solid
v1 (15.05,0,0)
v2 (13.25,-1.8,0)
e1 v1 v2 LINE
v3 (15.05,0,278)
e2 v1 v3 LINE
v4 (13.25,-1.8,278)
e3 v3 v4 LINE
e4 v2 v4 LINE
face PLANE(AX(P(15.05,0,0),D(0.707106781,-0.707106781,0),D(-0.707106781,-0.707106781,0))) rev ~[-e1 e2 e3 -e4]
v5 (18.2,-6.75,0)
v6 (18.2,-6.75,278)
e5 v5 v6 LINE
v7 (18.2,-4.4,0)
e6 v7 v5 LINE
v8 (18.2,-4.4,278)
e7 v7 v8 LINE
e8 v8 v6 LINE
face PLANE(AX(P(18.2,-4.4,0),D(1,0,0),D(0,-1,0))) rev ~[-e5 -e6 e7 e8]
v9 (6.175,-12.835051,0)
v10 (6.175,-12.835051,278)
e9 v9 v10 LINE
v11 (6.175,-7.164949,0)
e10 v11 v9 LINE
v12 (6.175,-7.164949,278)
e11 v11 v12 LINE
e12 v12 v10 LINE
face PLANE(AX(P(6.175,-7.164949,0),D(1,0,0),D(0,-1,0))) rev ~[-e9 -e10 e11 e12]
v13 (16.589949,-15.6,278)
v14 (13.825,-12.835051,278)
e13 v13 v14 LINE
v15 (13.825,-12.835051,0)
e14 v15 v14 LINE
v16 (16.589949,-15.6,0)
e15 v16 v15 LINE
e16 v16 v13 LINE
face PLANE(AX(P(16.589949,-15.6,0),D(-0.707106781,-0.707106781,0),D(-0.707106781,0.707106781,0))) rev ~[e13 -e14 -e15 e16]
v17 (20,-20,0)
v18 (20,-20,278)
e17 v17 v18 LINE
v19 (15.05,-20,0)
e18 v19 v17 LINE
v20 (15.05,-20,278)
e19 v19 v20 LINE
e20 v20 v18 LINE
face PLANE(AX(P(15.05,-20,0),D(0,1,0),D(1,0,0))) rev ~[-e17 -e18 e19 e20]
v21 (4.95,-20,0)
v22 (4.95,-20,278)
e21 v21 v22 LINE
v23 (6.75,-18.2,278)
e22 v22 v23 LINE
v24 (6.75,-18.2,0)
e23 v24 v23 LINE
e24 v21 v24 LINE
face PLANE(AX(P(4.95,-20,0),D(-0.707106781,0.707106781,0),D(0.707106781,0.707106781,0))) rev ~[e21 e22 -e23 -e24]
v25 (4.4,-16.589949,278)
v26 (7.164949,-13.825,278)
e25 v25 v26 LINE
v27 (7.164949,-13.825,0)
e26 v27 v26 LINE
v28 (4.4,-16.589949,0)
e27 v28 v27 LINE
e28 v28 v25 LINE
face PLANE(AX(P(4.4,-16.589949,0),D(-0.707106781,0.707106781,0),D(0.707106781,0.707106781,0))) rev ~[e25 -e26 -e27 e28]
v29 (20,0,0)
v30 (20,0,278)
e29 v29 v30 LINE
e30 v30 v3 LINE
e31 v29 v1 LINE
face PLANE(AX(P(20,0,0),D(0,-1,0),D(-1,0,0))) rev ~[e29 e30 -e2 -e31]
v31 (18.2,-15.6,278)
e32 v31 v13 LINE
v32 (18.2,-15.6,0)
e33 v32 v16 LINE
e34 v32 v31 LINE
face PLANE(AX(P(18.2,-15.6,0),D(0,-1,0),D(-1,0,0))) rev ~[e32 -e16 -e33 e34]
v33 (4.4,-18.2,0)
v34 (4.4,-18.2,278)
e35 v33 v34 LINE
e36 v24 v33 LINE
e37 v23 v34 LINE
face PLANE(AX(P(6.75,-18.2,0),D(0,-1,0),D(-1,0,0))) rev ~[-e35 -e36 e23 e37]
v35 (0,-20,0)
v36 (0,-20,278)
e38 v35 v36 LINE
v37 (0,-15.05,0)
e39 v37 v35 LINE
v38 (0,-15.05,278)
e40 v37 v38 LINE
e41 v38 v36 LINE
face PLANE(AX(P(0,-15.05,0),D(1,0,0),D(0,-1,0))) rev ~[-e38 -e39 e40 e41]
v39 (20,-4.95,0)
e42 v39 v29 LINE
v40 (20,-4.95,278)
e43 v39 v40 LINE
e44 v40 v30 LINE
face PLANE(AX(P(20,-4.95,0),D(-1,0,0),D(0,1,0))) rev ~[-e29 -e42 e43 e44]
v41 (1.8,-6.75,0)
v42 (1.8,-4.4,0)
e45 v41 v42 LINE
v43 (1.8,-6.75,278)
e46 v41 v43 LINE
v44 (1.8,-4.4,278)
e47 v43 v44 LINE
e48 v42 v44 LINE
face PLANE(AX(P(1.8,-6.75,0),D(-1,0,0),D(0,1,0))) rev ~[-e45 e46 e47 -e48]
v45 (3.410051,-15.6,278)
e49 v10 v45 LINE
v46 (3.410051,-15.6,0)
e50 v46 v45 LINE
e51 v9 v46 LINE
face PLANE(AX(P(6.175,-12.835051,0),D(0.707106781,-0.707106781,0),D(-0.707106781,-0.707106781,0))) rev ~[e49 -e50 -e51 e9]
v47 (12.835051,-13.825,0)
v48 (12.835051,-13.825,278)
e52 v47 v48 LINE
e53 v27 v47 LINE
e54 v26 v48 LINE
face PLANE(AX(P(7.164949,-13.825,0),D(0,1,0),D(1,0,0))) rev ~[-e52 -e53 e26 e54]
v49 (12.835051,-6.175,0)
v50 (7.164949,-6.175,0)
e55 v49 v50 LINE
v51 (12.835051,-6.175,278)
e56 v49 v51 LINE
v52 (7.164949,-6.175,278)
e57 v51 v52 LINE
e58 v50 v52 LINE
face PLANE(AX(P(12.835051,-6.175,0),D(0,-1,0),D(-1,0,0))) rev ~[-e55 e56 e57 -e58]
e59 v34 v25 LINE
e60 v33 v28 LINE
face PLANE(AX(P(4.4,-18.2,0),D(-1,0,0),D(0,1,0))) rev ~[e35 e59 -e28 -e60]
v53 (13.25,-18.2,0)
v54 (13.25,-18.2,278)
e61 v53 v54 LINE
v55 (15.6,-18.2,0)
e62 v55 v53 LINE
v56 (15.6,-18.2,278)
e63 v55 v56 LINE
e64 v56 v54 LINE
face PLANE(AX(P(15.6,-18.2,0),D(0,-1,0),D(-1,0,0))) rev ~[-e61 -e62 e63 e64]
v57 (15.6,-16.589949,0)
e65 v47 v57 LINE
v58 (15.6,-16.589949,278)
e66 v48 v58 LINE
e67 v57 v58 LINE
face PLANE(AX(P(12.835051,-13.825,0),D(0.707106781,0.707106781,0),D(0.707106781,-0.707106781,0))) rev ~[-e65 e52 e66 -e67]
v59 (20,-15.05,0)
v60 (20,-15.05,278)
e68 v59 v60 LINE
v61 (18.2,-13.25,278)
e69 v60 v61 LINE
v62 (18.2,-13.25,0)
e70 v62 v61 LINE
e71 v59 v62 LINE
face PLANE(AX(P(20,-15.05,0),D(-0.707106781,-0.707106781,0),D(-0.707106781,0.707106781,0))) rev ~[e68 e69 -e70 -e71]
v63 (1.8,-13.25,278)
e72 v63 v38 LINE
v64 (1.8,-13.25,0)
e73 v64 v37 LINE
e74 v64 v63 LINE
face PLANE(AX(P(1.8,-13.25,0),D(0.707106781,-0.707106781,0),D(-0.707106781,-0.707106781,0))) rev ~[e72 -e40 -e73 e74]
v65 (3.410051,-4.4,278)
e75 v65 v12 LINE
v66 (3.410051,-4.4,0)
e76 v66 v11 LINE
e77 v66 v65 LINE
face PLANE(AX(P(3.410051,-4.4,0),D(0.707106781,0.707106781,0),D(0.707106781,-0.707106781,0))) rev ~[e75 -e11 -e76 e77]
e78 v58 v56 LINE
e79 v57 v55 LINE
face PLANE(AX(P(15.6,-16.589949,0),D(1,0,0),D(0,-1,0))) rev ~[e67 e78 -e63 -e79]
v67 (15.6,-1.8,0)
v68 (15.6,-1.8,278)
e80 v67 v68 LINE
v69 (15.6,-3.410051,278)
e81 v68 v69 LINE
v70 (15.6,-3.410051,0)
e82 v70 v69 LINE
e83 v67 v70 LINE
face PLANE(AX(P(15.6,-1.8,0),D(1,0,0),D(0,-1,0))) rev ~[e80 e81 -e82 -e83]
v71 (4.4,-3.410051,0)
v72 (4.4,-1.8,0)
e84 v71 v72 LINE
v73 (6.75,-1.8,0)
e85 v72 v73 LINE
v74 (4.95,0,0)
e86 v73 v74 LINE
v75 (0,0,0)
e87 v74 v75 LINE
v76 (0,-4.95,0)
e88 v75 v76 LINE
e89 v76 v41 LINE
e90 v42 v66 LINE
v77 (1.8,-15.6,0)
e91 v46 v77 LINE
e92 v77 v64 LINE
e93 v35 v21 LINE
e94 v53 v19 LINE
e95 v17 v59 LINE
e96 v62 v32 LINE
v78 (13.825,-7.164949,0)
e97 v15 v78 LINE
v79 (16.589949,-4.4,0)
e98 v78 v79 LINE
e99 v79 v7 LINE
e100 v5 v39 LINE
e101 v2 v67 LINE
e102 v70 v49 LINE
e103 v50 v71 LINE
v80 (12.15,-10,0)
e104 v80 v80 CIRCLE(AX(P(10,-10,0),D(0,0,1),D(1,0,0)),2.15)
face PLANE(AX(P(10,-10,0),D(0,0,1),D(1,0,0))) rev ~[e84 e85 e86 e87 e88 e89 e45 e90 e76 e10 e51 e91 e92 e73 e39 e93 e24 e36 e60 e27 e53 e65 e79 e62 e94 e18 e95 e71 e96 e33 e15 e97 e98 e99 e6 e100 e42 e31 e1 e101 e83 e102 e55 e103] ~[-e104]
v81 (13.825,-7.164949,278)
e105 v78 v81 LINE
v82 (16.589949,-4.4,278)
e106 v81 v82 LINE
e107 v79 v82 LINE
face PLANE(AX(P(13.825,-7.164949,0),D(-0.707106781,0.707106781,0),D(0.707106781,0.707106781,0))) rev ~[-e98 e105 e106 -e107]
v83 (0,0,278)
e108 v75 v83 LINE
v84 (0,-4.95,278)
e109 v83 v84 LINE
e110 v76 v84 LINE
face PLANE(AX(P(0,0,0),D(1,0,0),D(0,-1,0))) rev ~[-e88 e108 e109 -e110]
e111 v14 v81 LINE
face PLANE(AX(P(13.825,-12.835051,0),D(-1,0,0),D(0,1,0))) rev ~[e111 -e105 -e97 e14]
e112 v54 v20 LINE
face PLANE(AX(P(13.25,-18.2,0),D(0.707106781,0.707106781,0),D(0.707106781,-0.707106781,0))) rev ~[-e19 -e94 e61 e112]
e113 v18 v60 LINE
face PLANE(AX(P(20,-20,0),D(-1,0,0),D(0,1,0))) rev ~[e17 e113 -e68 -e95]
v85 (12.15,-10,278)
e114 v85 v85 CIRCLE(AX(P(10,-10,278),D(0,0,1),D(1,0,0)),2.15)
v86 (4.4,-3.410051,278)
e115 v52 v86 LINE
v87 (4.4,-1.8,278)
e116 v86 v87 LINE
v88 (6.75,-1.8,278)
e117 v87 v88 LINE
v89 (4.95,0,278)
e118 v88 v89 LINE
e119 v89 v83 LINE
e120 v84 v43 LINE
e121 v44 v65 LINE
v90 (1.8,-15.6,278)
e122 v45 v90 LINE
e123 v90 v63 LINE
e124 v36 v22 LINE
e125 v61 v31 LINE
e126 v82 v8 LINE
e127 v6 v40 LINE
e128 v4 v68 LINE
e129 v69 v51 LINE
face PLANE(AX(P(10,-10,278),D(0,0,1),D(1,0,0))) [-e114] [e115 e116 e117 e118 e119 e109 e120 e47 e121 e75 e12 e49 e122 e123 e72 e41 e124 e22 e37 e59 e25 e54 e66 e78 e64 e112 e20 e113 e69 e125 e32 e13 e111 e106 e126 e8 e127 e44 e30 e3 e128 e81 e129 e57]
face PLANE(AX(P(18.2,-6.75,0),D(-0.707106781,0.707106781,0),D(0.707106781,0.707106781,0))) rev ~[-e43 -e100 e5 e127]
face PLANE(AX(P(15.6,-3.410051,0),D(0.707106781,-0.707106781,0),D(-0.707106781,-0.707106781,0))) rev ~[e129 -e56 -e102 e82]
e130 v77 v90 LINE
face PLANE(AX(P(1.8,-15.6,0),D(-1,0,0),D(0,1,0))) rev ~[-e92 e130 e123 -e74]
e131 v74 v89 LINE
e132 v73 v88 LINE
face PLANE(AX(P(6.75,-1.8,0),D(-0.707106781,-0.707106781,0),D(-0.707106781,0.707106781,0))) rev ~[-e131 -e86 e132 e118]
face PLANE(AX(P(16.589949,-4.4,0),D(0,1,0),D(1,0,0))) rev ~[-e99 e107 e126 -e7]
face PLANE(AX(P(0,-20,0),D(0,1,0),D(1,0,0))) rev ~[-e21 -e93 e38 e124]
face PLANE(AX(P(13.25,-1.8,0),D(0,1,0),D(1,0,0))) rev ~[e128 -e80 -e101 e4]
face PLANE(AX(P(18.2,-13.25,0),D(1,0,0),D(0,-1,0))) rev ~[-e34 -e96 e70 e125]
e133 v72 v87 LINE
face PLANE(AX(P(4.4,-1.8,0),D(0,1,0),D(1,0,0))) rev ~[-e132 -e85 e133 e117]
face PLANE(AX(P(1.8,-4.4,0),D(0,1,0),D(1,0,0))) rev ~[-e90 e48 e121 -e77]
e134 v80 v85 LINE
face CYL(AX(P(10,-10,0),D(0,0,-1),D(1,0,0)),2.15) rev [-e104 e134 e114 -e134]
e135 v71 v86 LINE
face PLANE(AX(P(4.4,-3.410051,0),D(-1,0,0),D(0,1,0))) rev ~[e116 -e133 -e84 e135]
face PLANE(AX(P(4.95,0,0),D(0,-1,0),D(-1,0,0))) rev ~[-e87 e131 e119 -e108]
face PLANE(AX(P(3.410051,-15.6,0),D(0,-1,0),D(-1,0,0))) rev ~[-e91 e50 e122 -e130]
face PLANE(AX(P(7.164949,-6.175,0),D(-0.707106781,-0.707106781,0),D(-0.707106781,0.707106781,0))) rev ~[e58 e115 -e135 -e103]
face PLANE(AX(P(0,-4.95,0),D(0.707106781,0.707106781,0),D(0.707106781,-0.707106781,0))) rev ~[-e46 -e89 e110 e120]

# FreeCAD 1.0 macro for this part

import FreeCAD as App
import Part
import Sketcher
Q = App.Units.Quantity

doc = App.newDocument("Part")
body = doc.addObject("PartDesign::Body", "Body")

sketch1 = body.newObject("Sketcher::SketchObject", "Sketch")
sketch1.AttachmentSupport = (doc.getObject("XY_Plane"), [""])
sketch1.MapMode = "FlatFace"
sketch1.addGeometry([
    Part.LineSegment(App.Vector(0, 0, 0), App.Vector(0, -4.95, 0)),
    Part.LineSegment(App.Vector(0, -4.95, 0), App.Vector(1.8, -6.75, 0)),
    Part.LineSegment(App.Vector(1.8, -6.75, 0), App.Vector(1.8, -4.4, 0)),
    Part.LineSegment(App.Vector(1.8, -4.4, 0), App.Vector(3.410051, -4.4, 0)),
    Part.LineSegment(App.Vector(3.410051, -4.4, 0), App.Vector(6.175, -7.164949, 0)),
    Part.LineSegment(App.Vector(6.175, -7.164949, 0), App.Vector(6.175, -12.835051, 0)),
    Part.LineSegment(App.Vector(6.175, -12.835051, 0), App.Vector(3.410051, -15.6, 0)),
    Part.LineSegment(App.Vector(3.410051, -15.6, 0), App.Vector(1.8, -15.6, 0)),
    Part.LineSegment(App.Vector(1.8, -15.6, 0), App.Vector(1.8, -13.25, 0)),
    Part.LineSegment(App.Vector(1.8, -13.25, 0), App.Vector(0, -15.05, 0)),
    Part.LineSegment(App.Vector(0, -15.05, 0), App.Vector(0, -20, 0)),
    Part.LineSegment(App.Vector(0, -20, 0), App.Vector(4.95, -20, 0)),
    Part.LineSegment(App.Vector(4.95, -20, 0), App.Vector(6.75, -18.2, 0)),
    Part.LineSegment(App.Vector(6.75, -18.2, 0), App.Vector(4.4, -18.2, 0)),
    Part.LineSegment(App.Vector(4.4, -18.2, 0), App.Vector(4.4, -16.589949, 0)),
    Part.LineSegment(App.Vector(4.4, -16.589949, 0), App.Vector(7.164949, -13.825, 0)),
    Part.LineSegment(App.Vector(7.164949, -13.825, 0), App.Vector(12.835051, -13.825, 0)),
    Part.LineSegment(App.Vector(12.835051, -13.825, 0), App.Vector(15.6, -16.589949, 0)),
    Part.LineSegment(App.Vector(15.6, -16.589949, 0), App.Vector(15.6, -18.2, 0)),
    Part.LineSegment(App.Vector(15.6, -18.2, 0), App.Vector(13.25, -18.2, 0)),
    Part.LineSegment(App.Vector(13.25, -18.2, 0), App.Vector(15.05, -20, 0)),
    Part.LineSegment(App.Vector(15.05, -20, 0), App.Vector(20, -20, 0)),
    Part.LineSegment(App.Vector(20, -20, 0), App.Vector(20, -15.05, 0)),
    Part.LineSegment(App.Vector(20, -15.05, 0), App.Vector(18.2, -13.25, 0)),
    Part.LineSegment(App.Vector(18.2, -13.25, 0), App.Vector(18.2, -15.6, 0)),
    Part.LineSegment(App.Vector(18.2, -15.6, 0), App.Vector(16.589949, -15.6, 0)),
    Part.LineSegment(App.Vector(16.589949, -15.6, 0), App.Vector(13.825, -12.835051, 0)),
    Part.LineSegment(App.Vector(13.825, -12.835051, 0), App.Vector(13.825, -7.164949, 0)),
    Part.LineSegment(App.Vector(13.825, -7.164949, 0), App.Vector(16.589949, -4.4, 0)),
    Part.LineSegment(App.Vector(16.589949, -4.4, 0), App.Vector(18.2, -4.4, 0)),
    Part.LineSegment(App.Vector(18.2, -4.4, 0), App.Vector(18.2, -6.75, 0)),
    Part.LineSegment(App.Vector(18.2, -6.75, 0), App.Vector(20, -4.95, 0)),
    Part.LineSegment(App.Vector(20, -4.95, 0), App.Vector(20, 0, 0)),
    Part.LineSegment(App.Vector(20, 0, 0), App.Vector(15.05, 0, 0)),
    Part.LineSegment(App.Vector(15.05, 0, 0), App.Vector(13.25, -1.8, 0)),
    Part.LineSegment(App.Vector(13.25, -1.8, 0), App.Vector(15.6, -1.8, 0)),
    Part.LineSegment(App.Vector(15.6, -1.8, 0), App.Vector(15.6, -3.410051, 0)),
    Part.LineSegment(App.Vector(15.6, -3.410051, 0), App.Vector(12.835051, -6.175, 0)),
    Part.LineSegment(App.Vector(12.835051, -6.175, 0), App.Vector(7.164949, -6.175, 0)),
    Part.LineSegment(App.Vector(7.164949, -6.175, 0), App.Vector(4.4, -3.410051, 0)),
    Part.LineSegment(App.Vector(4.4, -3.410051, 0), App.Vector(4.4, -1.8, 0)),
    Part.LineSegment(App.Vector(4.4, -1.8, 0), App.Vector(6.75, -1.8, 0)),
    Part.LineSegment(App.Vector(6.75, -1.8, 0), App.Vector(4.95, 0, 0)),
    Part.LineSegment(App.Vector(4.95, 0, 0), App.Vector(0, 0, 0)),
    Part.Circle(App.Vector(10, -10, 0), App.Vector(0, 0, 1), 2.15),
], False)
sketch1.addConstraint([
    Sketcher.Constraint("Coincident", 0, 2, 1, 1),
    Sketcher.Constraint("Coincident", 1, 2, 2, 1),
    Sketcher.Constraint("Coincident", 2, 2, 3, 1),
    Sketcher.Constraint("Coincident", 3, 2, 4, 1),
    Sketcher.Constraint("Coincident", 4, 2, 5, 1),
    Sketcher.Constraint("Coincident", 5, 2, 6, 1),
    Sketcher.Constraint("Coincident", 6, 2, 7, 1),
    Sketcher.Constraint("Coincident", 7, 2, 8, 1),
    Sketcher.Constraint("Coincident", 8, 2, 9, 1),
    Sketcher.Constraint("Coincident", 9, 2, 10, 1),
    Sketcher.Constraint("Coincident", 10, 2, 11, 1),
    Sketcher.Constraint("Coincident", 11, 2, 12, 1),
    Sketcher.Constraint("Coincident", 12, 2, 13, 1),
    Sketcher.Constraint("Coincident", 13, 2, 14, 1),
    Sketcher.Constraint("Coincident", 14, 2, 15, 1),
    Sketcher.Constraint("Coincident", 15, 2, 16, 1),
    Sketcher.Constraint("Coincident", 16, 2, 17, 1),
    Sketcher.Constraint("Coincident", 17, 2, 18, 1),
    Sketcher.Constraint("Coincident", 18, 2, 19, 1),
    Sketcher.Constraint("Coincident", 19, 2, 20, 1),
    Sketcher.Constraint("Coincident", 20, 2, 21, 1),
    Sketcher.Constraint("Coincident", 21, 2, 22, 1),
    Sketcher.Constraint("Coincident", 22, 2, 23, 1),
    Sketcher.Constraint("Coincident", 23, 2, 24, 1),
    Sketcher.Constraint("Coincident", 24, 2, 25, 1),
    Sketcher.Constraint("Coincident", 25, 2, 26, 1),
    Sketcher.Constraint("Coincident", 26, 2, 27, 1),
    Sketcher.Constraint("Coincident", 27, 2, 28, 1),
    Sketcher.Constraint("Coincident", 28, 2, 29, 1),
    Sketcher.Constraint("Coincident", 29, 2, 30, 1),
    Sketcher.Constraint("Coincident", 30, 2, 31, 1),
    Sketcher.Constraint("Coincident", 31, 2, 32, 1),
    Sketcher.Constraint("Coincident", 32, 2, 33, 1),
    Sketcher.Constraint("Coincident", 33, 2, 34, 1),
    Sketcher.Constraint("Coincident", 34, 2, 35, 1),
    Sketcher.Constraint("Coincident", 35, 2, 36, 1),
    Sketcher.Constraint("Coincident", 36, 2, 37, 1),
    Sketcher.Constraint("Coincident", 37, 2, 38, 1),
    Sketcher.Constraint("Coincident", 38, 2, 39, 1),
    Sketcher.Constraint("Coincident", 39, 2, 40, 1),
    Sketcher.Constraint("Coincident", 40, 2, 41, 1),
    Sketcher.Constraint("Coincident", 41, 2, 42, 1),
    Sketcher.Constraint("Coincident", 42, 2, 43, 1),
    Sketcher.Constraint("Coincident", 43, 2, 0, 1),
    Sketcher.Constraint("Vertical", 0),
    Sketcher.Constraint("Vertical", 2),
    Sketcher.Constraint("Horizontal", 3),
    Sketcher.Constraint("Vertical", 5),
    Sketcher.Constraint("Horizontal", 7),
    Sketcher.Constraint("Vertical", 8),
    Sketcher.Constraint("Vertical", 10),
    Sketcher.Constraint("Horizontal", 11),
    Sketcher.Constraint("Horizontal", 13),
    Sketcher.Constraint("Vertical", 14),
    Sketcher.Constraint("Horizontal", 16),
    Sketcher.Constraint("Vertical", 18),
    Sketcher.Constraint("Horizontal", 19),
    Sketcher.Constraint("Horizontal", 21),
    Sketcher.Constraint("Vertical", 22),
    Sketcher.Constraint("Vertical", 24),
    Sketcher.Constraint("Horizontal", 25),
    Sketcher.Constraint("Vertical", 27),
    Sketcher.Constraint("Horizontal", 29),
    Sketcher.Constraint("Vertical", 30),
    Sketcher.Constraint("Vertical", 32),
    Sketcher.Constraint("Horizontal", 33),
    Sketcher.Constraint("Horizontal", 35),
    Sketcher.Constraint("Vertical", 36),
    Sketcher.Constraint("Horizontal", 38),
    Sketcher.Constraint("Vertical", 40),
    Sketcher.Constraint("Horizontal", 41),
    Sketcher.Constraint("Horizontal", 43),
    Sketcher.Constraint("Coincident", 43, 2, -1, 1),
    Sketcher.Constraint("PointOnObject", 9, 2, -2),
    Sketcher.Constraint("PointOnObject", 32, 2, -1),
    Sketcher.Constraint("Parallel", 1, 4),
    Sketcher.Constraint("Perpendicular", 4, 6),
    Sketcher.Constraint("Parallel", 6, 9),
    Sketcher.Constraint("Parallel", 9, 12),
    Sketcher.Constraint("Parallel", 12, 15),
    Sketcher.Constraint("Perpendicular", 15, 17),
    Sketcher.Constraint("Parallel", 17, 20),
    Sketcher.Constraint("Parallel", 20, 23),
    Sketcher.Constraint("Parallel", 23, 26),
    Sketcher.Constraint("Perpendicular", 26, 28),
    Sketcher.Constraint("Parallel", 28, 31),
    Sketcher.Constraint("Parallel", 31, 34),
    Sketcher.Constraint("Parallel", 34, 37),
    Sketcher.Constraint("Perpendicular", 37, 39),
    Sketcher.Constraint("Parallel", 39, 42),
    Sketcher.Constraint("Horizontal", 14, 2, 17, 2),
    Sketcher.Constraint("Horizontal", 13, 2, 18, 2),
    Sketcher.Constraint("Horizontal", 11, 2, 20, 2),
    Sketcher.Constraint("Horizontal", 9, 2, 22, 2),
    Sketcher.Constraint("Horizontal", 8, 2, 23, 2),
    Sketcher.Constraint("Horizontal", 7, 2, 24, 2),
    Sketcher.Constraint("Horizontal", 5, 2, 26, 2),
    Sketcher.Constraint("Horizontal", 4, 2, 27, 2),
    Sketcher.Constraint("Horizontal", 3, 2, 28, 2),
    Sketcher.Constraint("Horizontal", 1, 2, 30, 2),
    Sketcher.Constraint("Horizontal", 0, 2, 31, 2),
    Sketcher.Constraint("Horizontal", 36, 2, 39, 2),
    Sketcher.Constraint("Horizontal", 35, 2, 40, 2),
    Sketcher.Constraint("Vertical", 3, 2, 6, 2),
    Sketcher.Constraint("Vertical", 2, 2, 7, 2),
    Sketcher.Constraint("Vertical", 25, 2, 28, 2),
    Sketcher.Constraint("Vertical", 24, 2, 29, 2),
    Sketcher.Constraint("Vertical", 20, 2, 33, 2),
    Sketcher.Constraint("Vertical", 19, 2, 34, 2),
    Sketcher.Constraint("Vertical", 18, 2, 35, 2),
    Sketcher.Constraint("Vertical", 16, 2, 37, 2),
    Sketcher.Constraint("Vertical", 15, 2, 38, 2),
    Sketcher.Constraint("Vertical", 12, 2, 41, 2),
    Sketcher.Constraint("Equal", 13, 19),
    Sketcher.Constraint("Equal", 11, 21),
    Sketcher.Constraint("Equal", 7, 25),
    Sketcher.Constraint("Equal", 43, 0),
    Sketcher.Constraint("Equal", 41, 2),
    Sketcher.Constraint("Equal", 38, 5),
    Sketcher.Constraint("Equal", 2, 8),
    Sketcher.Constraint("Equal", 0, 10),
    Sketcher.Constraint("Equal", 29, 14),
    Sketcher.Constraint("Equal", 18, 36),
    Sketcher.Constraint("Equal", 9, 12),
    Sketcher.Constraint("Equal", 6, 15),
    Sketcher.Constraint("Diameter", 44, Q("4.3 mm")),
    Sketcher.Constraint("DistanceX", -1, 1, 44, 3, Q("10 mm")),
    Sketcher.Constraint("DistanceY", 44, 3, -1, 1, Q("10 mm")),
    Sketcher.Constraint("DistanceY", 10, 2, -1, 1, Q("20 mm")),
    Sketcher.Constraint("DistanceX", 11, 1, 11, 2, Q("4.95 mm")),
    Sketcher.Constraint("DistanceX", 13, 2, 13, 1, Q("2.35 mm")),
    Sketcher.Constraint("DistanceX", -1, 1, 1, 2, Q("1.8 mm")),
    Sketcher.Constraint("DistanceX", 4, 2, 27, 2, Q("7.65 mm")),
    Sketcher.Constraint("DistanceX", 16, 1, 16, 2, Q("5.670101 mm")),
])
pad1 = body.newObject("PartDesign::Pad", "Pad")
pad1.Profile = sketch1
pad1.Length = 278

doc.recompute()
